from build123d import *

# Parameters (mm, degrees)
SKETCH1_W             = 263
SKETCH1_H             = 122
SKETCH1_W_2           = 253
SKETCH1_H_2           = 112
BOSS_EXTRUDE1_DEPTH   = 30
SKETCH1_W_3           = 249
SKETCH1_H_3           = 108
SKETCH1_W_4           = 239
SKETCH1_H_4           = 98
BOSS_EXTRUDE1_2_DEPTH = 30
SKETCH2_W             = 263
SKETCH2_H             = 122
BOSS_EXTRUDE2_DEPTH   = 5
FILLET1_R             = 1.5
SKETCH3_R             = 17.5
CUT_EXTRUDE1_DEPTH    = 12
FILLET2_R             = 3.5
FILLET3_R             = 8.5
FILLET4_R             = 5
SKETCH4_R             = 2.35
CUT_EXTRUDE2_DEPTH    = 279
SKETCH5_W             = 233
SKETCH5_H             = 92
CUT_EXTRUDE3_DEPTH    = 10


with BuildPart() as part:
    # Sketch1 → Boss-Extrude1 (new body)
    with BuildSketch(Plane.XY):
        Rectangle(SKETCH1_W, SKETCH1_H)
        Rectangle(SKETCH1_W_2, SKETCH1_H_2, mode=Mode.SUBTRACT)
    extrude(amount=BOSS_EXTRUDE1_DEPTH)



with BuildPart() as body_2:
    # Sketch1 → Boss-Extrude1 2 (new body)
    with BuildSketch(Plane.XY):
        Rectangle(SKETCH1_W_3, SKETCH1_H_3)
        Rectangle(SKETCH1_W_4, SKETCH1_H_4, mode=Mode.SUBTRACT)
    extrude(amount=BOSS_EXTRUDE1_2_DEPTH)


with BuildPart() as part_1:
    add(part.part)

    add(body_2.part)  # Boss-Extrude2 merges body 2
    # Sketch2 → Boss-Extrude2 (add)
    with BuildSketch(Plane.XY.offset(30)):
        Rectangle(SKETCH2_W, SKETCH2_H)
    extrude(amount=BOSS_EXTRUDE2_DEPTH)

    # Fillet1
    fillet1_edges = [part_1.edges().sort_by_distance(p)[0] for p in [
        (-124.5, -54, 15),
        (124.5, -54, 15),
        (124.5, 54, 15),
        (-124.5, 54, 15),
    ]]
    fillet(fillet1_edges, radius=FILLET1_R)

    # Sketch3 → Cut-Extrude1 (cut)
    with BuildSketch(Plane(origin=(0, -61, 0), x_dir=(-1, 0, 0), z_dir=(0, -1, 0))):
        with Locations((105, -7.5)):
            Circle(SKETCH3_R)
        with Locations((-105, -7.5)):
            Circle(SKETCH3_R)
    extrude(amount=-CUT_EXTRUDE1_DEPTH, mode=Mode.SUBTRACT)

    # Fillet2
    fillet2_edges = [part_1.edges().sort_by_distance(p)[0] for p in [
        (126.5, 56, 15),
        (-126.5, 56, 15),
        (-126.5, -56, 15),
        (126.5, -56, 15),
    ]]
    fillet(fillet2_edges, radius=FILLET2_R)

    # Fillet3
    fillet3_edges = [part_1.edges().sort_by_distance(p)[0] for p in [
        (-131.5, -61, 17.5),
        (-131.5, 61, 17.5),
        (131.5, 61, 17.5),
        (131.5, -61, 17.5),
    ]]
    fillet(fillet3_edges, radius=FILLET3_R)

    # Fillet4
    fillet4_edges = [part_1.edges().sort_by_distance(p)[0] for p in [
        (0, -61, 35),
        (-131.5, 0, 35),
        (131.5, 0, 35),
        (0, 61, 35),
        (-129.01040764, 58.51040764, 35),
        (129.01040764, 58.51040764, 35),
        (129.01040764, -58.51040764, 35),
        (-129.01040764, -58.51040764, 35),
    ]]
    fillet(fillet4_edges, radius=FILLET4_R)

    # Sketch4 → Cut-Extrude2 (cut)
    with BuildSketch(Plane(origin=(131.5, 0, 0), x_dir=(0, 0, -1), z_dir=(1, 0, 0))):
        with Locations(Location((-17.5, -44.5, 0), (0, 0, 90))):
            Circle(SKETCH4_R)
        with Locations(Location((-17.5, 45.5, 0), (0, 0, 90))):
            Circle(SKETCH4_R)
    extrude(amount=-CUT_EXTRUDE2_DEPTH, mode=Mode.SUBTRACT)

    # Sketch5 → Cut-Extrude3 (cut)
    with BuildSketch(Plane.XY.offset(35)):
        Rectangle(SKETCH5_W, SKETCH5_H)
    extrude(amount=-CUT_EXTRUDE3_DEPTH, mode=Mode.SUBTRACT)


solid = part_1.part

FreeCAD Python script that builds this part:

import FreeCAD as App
import Part
import Sketcher

V = App.Vector
Q = App.Units.Quantity


def edges_at(feature, points):
    """Names of the edges that pass closest to the given points."""
    edges = feature.Shape.Edges
    near = lambda p: min(range(len(edges)), key=lambda i: edges[i].distToShape(Part.Vertex(*p))[0])
    return sorted({f"Edge{near(p) + 1}" for p in points})

doc = App.newDocument("Part")
params = doc.addObject("Spreadsheet::Sheet", "Params")
for row, (alias, value) in enumerate([
    ("sketch1_width", "263 mm"),
    ("sketch1_width2", "253 mm"),
    ("sketch1_height", "122 mm"),
    ("sketch1_height2", "112 mm"),
    ("pad1_length", "30 mm"),
    ("sketch2_width", "249 mm"),
    ("sketch2_width2", "239 mm"),
    ("sketch2_height", "108 mm"),
    ("sketch2_height2", "98 mm"),
    ("pad2_length", "30 mm"),
    ("sketch3_width", "263 mm"),
    ("sketch3_height", "122 mm"),
    ("pad3_length", "5 mm"),
    ("fillet_radius", "1.5 mm"),
    ("sketch4_diameter", "35 mm"),
    ("pocket1_length", "12 mm"),
    ("fillet2_radius", "3.5 mm"),
    ("fillet3_radius", "8.5 mm"),
    ("fillet4_radius", "5 mm"),
    ("sketch5_diameter", "4.7 mm"),
    ("pocket2_length", "279 mm"),
    ("sketch6_width", "233 mm"),
    ("sketch6_height", "92 mm"),
    ("pocket3_length", "10 mm"),
], start=1):
    params.set(f"A{row}", alias)
    params.set(f"B{row}", "=" + value)
    params.setAlias(f"B{row}", alias)

body = doc.addObject("PartDesign::Body", "Body")

# Sketch on XY plane
sketch1 = body.newObject("Sketcher::SketchObject", "Sketch")
sketch1.AttachmentSupport = (doc.getObject("XY_Plane"), [""])
sketch1.MapMode = "FlatFace"
sketch1.addGeometry(Part.LineSegment(V(-131.5, 61, 0), V(-131.5, -61, 0)), False)
sketch1.addGeometry(Part.LineSegment(V(-131.5, -61, 0), V(131.5, -61, 0)), False)
sketch1.addGeometry(Part.LineSegment(V(131.5, -61, 0), V(131.5, 61, 0)), False)
sketch1.addGeometry(Part.LineSegment(V(131.5, 61, 0), V(-131.5, 61, 0)), False)
sketch1.addGeometry(Part.LineSegment(V(126.5, -56, 0), V(-126.5, -56, 0)), False)
sketch1.addGeometry(Part.LineSegment(V(-126.5, -56, 0), V(-126.5, 56, 0)), False)
sketch1.addGeometry(Part.LineSegment(V(-126.5, 56, 0), V(126.5, 56, 0)), False)
sketch1.addGeometry(Part.LineSegment(V(126.5, 56, 0), V(126.5, -56, 0)), False)
sketch1.addConstraint(Sketcher.Constraint("Coincident", 0, 2, 1, 1))
sketch1.addConstraint(Sketcher.Constraint("Coincident", 1, 2, 2, 1))
sketch1.addConstraint(Sketcher.Constraint("Coincident", 2, 2, 3, 1))
sketch1.addConstraint(Sketcher.Constraint("Coincident", 3, 2, 0, 1))
sketch1.addConstraint(Sketcher.Constraint("Coincident", 4, 2, 5, 1))
sketch1.addConstraint(Sketcher.Constraint("Coincident", 5, 2, 6, 1))
sketch1.addConstraint(Sketcher.Constraint("Coincident", 6, 2, 7, 1))
sketch1.addConstraint(Sketcher.Constraint("Coincident", 7, 2, 4, 1))
sketch1.addConstraint(Sketcher.Constraint("Vertical", 0))
sketch1.addConstraint(Sketcher.Constraint("Horizontal", 1))
sketch1.addConstraint(Sketcher.Constraint("Vertical", 2))
sketch1.addConstraint(Sketcher.Constraint("Horizontal", 3))
sketch1.addConstraint(Sketcher.Constraint("Horizontal", 4))
sketch1.addConstraint(Sketcher.Constraint("Vertical", 5))
sketch1.addConstraint(Sketcher.Constraint("Horizontal", 6))
sketch1.addConstraint(Sketcher.Constraint("Vertical", 7))
sketch1.addConstraint(Sketcher.Constraint("Symmetric", 0, 2, 2, 2, -1, 1))
sketch1.addConstraint(Sketcher.Constraint("Symmetric", 4, 2, 6, 2, -1, 1))
sketch1.addConstraint(Sketcher.Constraint("DistanceX", 1, 1, 1, 2, Q("263 mm")))
sketch1.addConstraint(Sketcher.Constraint("DistanceX", 4, 2, 4, 1, Q("253 mm")))
sketch1.addConstraint(Sketcher.Constraint("DistanceY", 0, 2, 0, 1, Q("122 mm")))
sketch1.addConstraint(Sketcher.Constraint("DistanceY", 5, 1, 5, 2, Q("112 mm")))
sketch1.setExpression("Constraints[18]", "Params.sketch1_width")
sketch1.setExpression("Constraints[19]", "Params.sketch1_width2")
sketch1.setExpression("Constraints[20]", "Params.sketch1_height")
sketch1.setExpression("Constraints[21]", "Params.sketch1_height2")
pad1 = body.newObject("PartDesign::Pad", "Pad")
pad1.Profile = sketch1
pad1.setExpression("Length", "Params.pad1_length")
body2 = doc.addObject("PartDesign::Body", "Body001")

# Sketch on XY plane
sketch2 = body2.newObject("Sketcher::SketchObject", "Sketch001")
sketch2.AttachmentSupport = (doc.getObject("XY_Plane001"), [""])
sketch2.MapMode = "FlatFace"
sketch2.addGeometry(Part.LineSegment(V(-124.5, 54, 0), V(-124.5, -54, 0)), False)
sketch2.addGeometry(Part.LineSegment(V(-124.5, -54, 0), V(124.5, -54, 0)), False)
sketch2.addGeometry(Part.LineSegment(V(124.5, -54, 0), V(124.5, 54, 0)), False)
sketch2.addGeometry(Part.LineSegment(V(124.5, 54, 0), V(-124.5, 54, 0)), False)
sketch2.addGeometry(Part.LineSegment(V(119.5, -49, 0), V(-119.5, -49, 0)), False)
sketch2.addGeometry(Part.LineSegment(V(-119.5, -49, 0), V(-119.5, 49, 0)), False)
sketch2.addGeometry(Part.LineSegment(V(-119.5, 49, 0), V(119.5, 49, 0)), False)
sketch2.addGeometry(Part.LineSegment(V(119.5, 49, 0), V(119.5, -49, 0)), False)
sketch2.addConstraint(Sketcher.Constraint("Coincident", 0, 2, 1, 1))
sketch2.addConstraint(Sketcher.Constraint("Coincident", 1, 2, 2, 1))
sketch2.addConstraint(Sketcher.Constraint("Coincident", 2, 2, 3, 1))
sketch2.addConstraint(Sketcher.Constraint("Coincident", 3, 2, 0, 1))
sketch2.addConstraint(Sketcher.Constraint("Coincident", 4, 2, 5, 1))
sketch2.addConstraint(Sketcher.Constraint("Coincident", 5, 2, 6, 1))
sketch2.addConstraint(Sketcher.Constraint("Coincident", 6, 2, 7, 1))
sketch2.addConstraint(Sketcher.Constraint("Coincident", 7, 2, 4, 1))
sketch2.addConstraint(Sketcher.Constraint("Vertical", 0))
sketch2.addConstraint(Sketcher.Constraint("Horizontal", 1))
sketch2.addConstraint(Sketcher.Constraint("Vertical", 2))
sketch2.addConstraint(Sketcher.Constraint("Horizontal", 3))
sketch2.addConstraint(Sketcher.Constraint("Horizontal", 4))
sketch2.addConstraint(Sketcher.Constraint("Vertical", 5))
sketch2.addConstraint(Sketcher.Constraint("Horizontal", 6))
sketch2.addConstraint(Sketcher.Constraint("Vertical", 7))
sketch2.addConstraint(Sketcher.Constraint("Symmetric", 0, 2, 2, 2, -1, 1))
sketch2.addConstraint(Sketcher.Constraint("Symmetric", 4, 2, 6, 2, -1, 1))
sketch2.addConstraint(Sketcher.Constraint("DistanceX", 1, 1, 1, 2, Q("249 mm")))
sketch2.addConstraint(Sketcher.Constraint("DistanceX", 4, 2, 4, 1, Q("239 mm")))
sketch2.addConstraint(Sketcher.Constraint("DistanceY", 0, 2, 0, 1, Q("108 mm")))
sketch2.addConstraint(Sketcher.Constraint("DistanceY", 5, 1, 5, 2, Q("98 mm")))
sketch2.setExpression("Constraints[18]", "Params.sketch2_width")
sketch2.setExpression("Constraints[19]", "Params.sketch2_width2")
sketch2.setExpression("Constraints[20]", "Params.sketch2_height")
sketch2.setExpression("Constraints[21]", "Params.sketch2_height2")
pad2 = body2.newObject("PartDesign::Pad", "Pad001")
pad2.Profile = sketch2
pad2.setExpression("Length", "Params.pad2_length")
body.AllowCompound = True
doc.recompute()

boolean = body.newObject("PartDesign::Boolean", "Boolean")
boolean.Type = "Fuse"
boolean.addObjects([body2])

# Sketch on XY plane
sketch3 = body.newObject("Sketcher::SketchObject", "Sketch002")
sketch3.AttachmentSupport = (doc.getObject("XY_Plane"), [""])
sketch3.MapMode = "FlatFace"
sketch3.AttachmentOffset = App.Placement(V(0, 0, 30), App.Rotation())
sketch3.addGeometry(Part.LineSegment(V(-131.5, 61, 0), V(-131.5, -61, 0)), False)
sketch3.addGeometry(Part.LineSegment(V(-131.5, -61, 0), V(131.5, -61, 0)), False)
sketch3.addGeometry(Part.LineSegment(V(131.5, -61, 0), V(131.5, 61, 0)), False)
sketch3.addGeometry(Part.LineSegment(V(131.5, 61, 0), V(-131.5, 61, 0)), False)
sketch3.addConstraint(Sketcher.Constraint("Coincident", 0, 2, 1, 1))
sketch3.addConstraint(Sketcher.Constraint("Coincident", 1, 2, 2, 1))
sketch3.addConstraint(Sketcher.Constraint("Coincident", 2, 2, 3, 1))
sketch3.addConstraint(Sketcher.Constraint("Coincident", 3, 2, 0, 1))
sketch3.addConstraint(Sketcher.Constraint("Vertical", 0))
sketch3.addConstraint(Sketcher.Constraint("Horizontal", 1))
sketch3.addConstraint(Sketcher.Constraint("Vertical", 2))
sketch3.addConstraint(Sketcher.Constraint("Horizontal", 3))
sketch3.addConstraint(Sketcher.Constraint("Symmetric", 0, 2, 2, 2, -1, 1))
sketch3.addConstraint(Sketcher.Constraint("DistanceX", 1, 1, 1, 2, Q("263 mm")))
sketch3.addConstraint(Sketcher.Constraint("DistanceY", 0, 2, 0, 1, Q("122 mm")))
sketch3.setExpression("Constraints[9]", "Params.sketch3_width")
sketch3.setExpression("Constraints[10]", "Params.sketch3_height")
pad3 = body.newObject("PartDesign::Pad", "Pad002")
pad3.Profile = sketch3
pad3.setExpression("Length", "Params.pad3_length")
doc.recompute()

fillet = body.newObject("PartDesign::Fillet", "Fillet")
fillet.Base = (pad3, edges_at(pad3, [
    (-124.5, -54, 15),
    (124.5, -54, 15),
    (124.5, 54, 15),
    (-124.5, 54, 15),
]))
fillet.setExpression("Radius", "Params.fillet_radius")

# Sketch on XZ plane
sketch4 = body.newObject("Sketcher::SketchObject", "Sketch003")
sketch4.AttachmentSupport = (doc.getObject("XZ_Plane"), [""])
sketch4.MapMode = "FlatFace"
sketch4.AttachmentOffset = App.Placement(V(0, 0, 61), App.Rotation())
sketch4.addGeometry(Part.Circle(V(-105, 7.5, 0), V(0, 0, 1), 17.5), False)
sketch4.addGeometry(Part.Circle(V(105, 7.5, 0), V(0, 0, 1), 17.5), False)
sketch4.addConstraint(Sketcher.Constraint("Equal", 0, 1))
sketch4.addConstraint(Sketcher.Constraint("Symmetric", 0, 3, 1, 3, -2))
sketch4.addConstraint(Sketcher.Constraint("Diameter", 0, Q("35 mm")))
sketch4.addConstraint(Sketcher.Constraint("DistanceX", 0, 3, -1, 1, Q("105 mm")))
sketch4.addConstraint(Sketcher.Constraint("DistanceY", -1, 1, 0, 3, Q("7.5 mm")))
sketch4.setExpression("Constraints[2]", "Params.sketch4_diameter")
pocket1 = body.newObject("PartDesign::Pocket", "Pocket")
pocket1.Profile = sketch4
pocket1.setExpression("Length", "Params.pocket1_length")
doc.recompute()

fillet2 = body.newObject("PartDesign::Fillet", "Fillet001")
fillet2.Base = (pocket1, edges_at(pocket1, [
    (126.5, 56, 15),
    (-126.5, 56, 15),
    (-126.5, -56, 15),
    (126.5, -56, 15),
]))
fillet2.setExpression("Radius", "Params.fillet2_radius")
doc.recompute()

fillet3 = body.newObject("PartDesign::Fillet", "Fillet002")
fillet3.Base = (fillet2, edges_at(fillet2, [
    (-131.5, -61, 17.5),
    (-131.5, 61, 17.5),
    (131.5, 61, 17.5),
    (131.5, -61, 17.5),
]))
fillet3.setExpression("Radius", "Params.fillet3_radius")
doc.recompute()

fillet4 = body.newObject("PartDesign::Fillet", "Fillet003")
fillet4.Base = (fillet3, edges_at(fillet3, [
    (0, -61, 35),
    (-131.5, 0, 35),
    (131.5, 0, 35),
    (0, 61, 35),
    (-129.01, 58.51, 35),
    (129.01, 58.51, 35),
    (129.01, -58.51, 35),
    (-129.01, -58.51, 35),
]))
fillet4.setExpression("Radius", "Params.fillet4_radius")

# Sketch on YZ plane
sketch5 = body.newObject("Sketcher::SketchObject", "Sketch004")
sketch5.AttachmentSupport = (doc.getObject("YZ_Plane"), [""])
sketch5.MapMode = "FlatFace"
sketch5.AttachmentOffset = App.Placement(V(0, 0, 131.5), App.Rotation())
sketch5.addGeometry(Part.Circle(V(-44.5, 17.5, 0), V(0, 0, 1), 2.35), False)
sketch5.addGeometry(Part.Circle(V(45.5, 17.5, 0), V(0, 0, 1), 2.35), False)
sketch5.addConstraint(Sketcher.Constraint("Equal", 0, 1))
sketch5.addConstraint(Sketcher.Constraint("Horizontal", 0, 3, 1, 3))
sketch5.addConstraint(Sketcher.Constraint("Diameter", 0, Q("4.7 mm")))
sketch5.addConstraint(Sketcher.Constraint("DistanceX", 0, 3, 1, 3, Q("90 mm")))
sketch5.addConstraint(Sketcher.Constraint("DistanceX", 0, 3, -1, 1, Q("44.5 mm")))
sketch5.addConstraint(Sketcher.Constraint("DistanceY", -1, 1, 0, 3, Q("17.5 mm")))
sketch5.setExpression("Constraints[2]", "Params.sketch5_diameter")
pocket2 = body.newObject("PartDesign::Pocket", "Pocket001")
pocket2.Profile = sketch5
pocket2.setExpression("Length", "Params.pocket2_length")

# Sketch on XY plane
sketch6 = body.newObject("Sketcher::SketchObject", "Sketch005")
sketch6.AttachmentSupport = (doc.getObject("XY_Plane"), [""])
sketch6.MapMode = "FlatFace"
sketch6.AttachmentOffset = App.Placement(V(0, 0, 35), App.Rotation())
sketch6.addGeometry(Part.LineSegment(V(-116.5, 46, 0), V(-116.5, -46, 0)), False)
sketch6.addGeometry(Part.LineSegment(V(-116.5, -46, 0), V(116.5, -46, 0)), False)
sketch6.addGeometry(Part.LineSegment(V(116.5, -46, 0), V(116.5, 46, 0)), False)
sketch6.addGeometry(Part.LineSegment(V(116.5, 46, 0), V(-116.5, 46, 0)), False)
sketch6.addConstraint(Sketcher.Constraint("Coincident", 0, 2, 1, 1))
sketch6.addConstraint(Sketcher.Constraint("Coincident", 1, 2, 2, 1))
sketch6.addConstraint(Sketcher.Constraint("Coincident", 2, 2, 3, 1))
sketch6.addConstraint(Sketcher.Constraint("Coincident", 3, 2, 0, 1))
sketch6.addConstraint(Sketcher.Constraint("Vertical", 0))
sketch6.addConstraint(Sketcher.Constraint("Horizontal", 1))
sketch6.addConstraint(Sketcher.Constraint("Vertical", 2))
sketch6.addConstraint(Sketcher.Constraint("Horizontal", 3))
sketch6.addConstraint(Sketcher.Constraint("Symmetric", 0, 2, 2, 2, -1, 1))
sketch6.addConstraint(Sketcher.Constraint("DistanceX", 1, 1, 1, 2, Q("233 mm")))
sketch6.addConstraint(Sketcher.Constraint("DistanceY", 0, 2, 0, 1, Q("92 mm")))
sketch6.setExpression("Constraints[9]", "Params.sketch6_width")
sketch6.setExpression("Constraints[10]", "Params.sketch6_height")
pocket3 = body.newObject("PartDesign::Pocket", "Pocket002")
pocket3.Profile = sketch6
pocket3.setExpression("Length", "Params.pocket3_length")

doc.recompute()
